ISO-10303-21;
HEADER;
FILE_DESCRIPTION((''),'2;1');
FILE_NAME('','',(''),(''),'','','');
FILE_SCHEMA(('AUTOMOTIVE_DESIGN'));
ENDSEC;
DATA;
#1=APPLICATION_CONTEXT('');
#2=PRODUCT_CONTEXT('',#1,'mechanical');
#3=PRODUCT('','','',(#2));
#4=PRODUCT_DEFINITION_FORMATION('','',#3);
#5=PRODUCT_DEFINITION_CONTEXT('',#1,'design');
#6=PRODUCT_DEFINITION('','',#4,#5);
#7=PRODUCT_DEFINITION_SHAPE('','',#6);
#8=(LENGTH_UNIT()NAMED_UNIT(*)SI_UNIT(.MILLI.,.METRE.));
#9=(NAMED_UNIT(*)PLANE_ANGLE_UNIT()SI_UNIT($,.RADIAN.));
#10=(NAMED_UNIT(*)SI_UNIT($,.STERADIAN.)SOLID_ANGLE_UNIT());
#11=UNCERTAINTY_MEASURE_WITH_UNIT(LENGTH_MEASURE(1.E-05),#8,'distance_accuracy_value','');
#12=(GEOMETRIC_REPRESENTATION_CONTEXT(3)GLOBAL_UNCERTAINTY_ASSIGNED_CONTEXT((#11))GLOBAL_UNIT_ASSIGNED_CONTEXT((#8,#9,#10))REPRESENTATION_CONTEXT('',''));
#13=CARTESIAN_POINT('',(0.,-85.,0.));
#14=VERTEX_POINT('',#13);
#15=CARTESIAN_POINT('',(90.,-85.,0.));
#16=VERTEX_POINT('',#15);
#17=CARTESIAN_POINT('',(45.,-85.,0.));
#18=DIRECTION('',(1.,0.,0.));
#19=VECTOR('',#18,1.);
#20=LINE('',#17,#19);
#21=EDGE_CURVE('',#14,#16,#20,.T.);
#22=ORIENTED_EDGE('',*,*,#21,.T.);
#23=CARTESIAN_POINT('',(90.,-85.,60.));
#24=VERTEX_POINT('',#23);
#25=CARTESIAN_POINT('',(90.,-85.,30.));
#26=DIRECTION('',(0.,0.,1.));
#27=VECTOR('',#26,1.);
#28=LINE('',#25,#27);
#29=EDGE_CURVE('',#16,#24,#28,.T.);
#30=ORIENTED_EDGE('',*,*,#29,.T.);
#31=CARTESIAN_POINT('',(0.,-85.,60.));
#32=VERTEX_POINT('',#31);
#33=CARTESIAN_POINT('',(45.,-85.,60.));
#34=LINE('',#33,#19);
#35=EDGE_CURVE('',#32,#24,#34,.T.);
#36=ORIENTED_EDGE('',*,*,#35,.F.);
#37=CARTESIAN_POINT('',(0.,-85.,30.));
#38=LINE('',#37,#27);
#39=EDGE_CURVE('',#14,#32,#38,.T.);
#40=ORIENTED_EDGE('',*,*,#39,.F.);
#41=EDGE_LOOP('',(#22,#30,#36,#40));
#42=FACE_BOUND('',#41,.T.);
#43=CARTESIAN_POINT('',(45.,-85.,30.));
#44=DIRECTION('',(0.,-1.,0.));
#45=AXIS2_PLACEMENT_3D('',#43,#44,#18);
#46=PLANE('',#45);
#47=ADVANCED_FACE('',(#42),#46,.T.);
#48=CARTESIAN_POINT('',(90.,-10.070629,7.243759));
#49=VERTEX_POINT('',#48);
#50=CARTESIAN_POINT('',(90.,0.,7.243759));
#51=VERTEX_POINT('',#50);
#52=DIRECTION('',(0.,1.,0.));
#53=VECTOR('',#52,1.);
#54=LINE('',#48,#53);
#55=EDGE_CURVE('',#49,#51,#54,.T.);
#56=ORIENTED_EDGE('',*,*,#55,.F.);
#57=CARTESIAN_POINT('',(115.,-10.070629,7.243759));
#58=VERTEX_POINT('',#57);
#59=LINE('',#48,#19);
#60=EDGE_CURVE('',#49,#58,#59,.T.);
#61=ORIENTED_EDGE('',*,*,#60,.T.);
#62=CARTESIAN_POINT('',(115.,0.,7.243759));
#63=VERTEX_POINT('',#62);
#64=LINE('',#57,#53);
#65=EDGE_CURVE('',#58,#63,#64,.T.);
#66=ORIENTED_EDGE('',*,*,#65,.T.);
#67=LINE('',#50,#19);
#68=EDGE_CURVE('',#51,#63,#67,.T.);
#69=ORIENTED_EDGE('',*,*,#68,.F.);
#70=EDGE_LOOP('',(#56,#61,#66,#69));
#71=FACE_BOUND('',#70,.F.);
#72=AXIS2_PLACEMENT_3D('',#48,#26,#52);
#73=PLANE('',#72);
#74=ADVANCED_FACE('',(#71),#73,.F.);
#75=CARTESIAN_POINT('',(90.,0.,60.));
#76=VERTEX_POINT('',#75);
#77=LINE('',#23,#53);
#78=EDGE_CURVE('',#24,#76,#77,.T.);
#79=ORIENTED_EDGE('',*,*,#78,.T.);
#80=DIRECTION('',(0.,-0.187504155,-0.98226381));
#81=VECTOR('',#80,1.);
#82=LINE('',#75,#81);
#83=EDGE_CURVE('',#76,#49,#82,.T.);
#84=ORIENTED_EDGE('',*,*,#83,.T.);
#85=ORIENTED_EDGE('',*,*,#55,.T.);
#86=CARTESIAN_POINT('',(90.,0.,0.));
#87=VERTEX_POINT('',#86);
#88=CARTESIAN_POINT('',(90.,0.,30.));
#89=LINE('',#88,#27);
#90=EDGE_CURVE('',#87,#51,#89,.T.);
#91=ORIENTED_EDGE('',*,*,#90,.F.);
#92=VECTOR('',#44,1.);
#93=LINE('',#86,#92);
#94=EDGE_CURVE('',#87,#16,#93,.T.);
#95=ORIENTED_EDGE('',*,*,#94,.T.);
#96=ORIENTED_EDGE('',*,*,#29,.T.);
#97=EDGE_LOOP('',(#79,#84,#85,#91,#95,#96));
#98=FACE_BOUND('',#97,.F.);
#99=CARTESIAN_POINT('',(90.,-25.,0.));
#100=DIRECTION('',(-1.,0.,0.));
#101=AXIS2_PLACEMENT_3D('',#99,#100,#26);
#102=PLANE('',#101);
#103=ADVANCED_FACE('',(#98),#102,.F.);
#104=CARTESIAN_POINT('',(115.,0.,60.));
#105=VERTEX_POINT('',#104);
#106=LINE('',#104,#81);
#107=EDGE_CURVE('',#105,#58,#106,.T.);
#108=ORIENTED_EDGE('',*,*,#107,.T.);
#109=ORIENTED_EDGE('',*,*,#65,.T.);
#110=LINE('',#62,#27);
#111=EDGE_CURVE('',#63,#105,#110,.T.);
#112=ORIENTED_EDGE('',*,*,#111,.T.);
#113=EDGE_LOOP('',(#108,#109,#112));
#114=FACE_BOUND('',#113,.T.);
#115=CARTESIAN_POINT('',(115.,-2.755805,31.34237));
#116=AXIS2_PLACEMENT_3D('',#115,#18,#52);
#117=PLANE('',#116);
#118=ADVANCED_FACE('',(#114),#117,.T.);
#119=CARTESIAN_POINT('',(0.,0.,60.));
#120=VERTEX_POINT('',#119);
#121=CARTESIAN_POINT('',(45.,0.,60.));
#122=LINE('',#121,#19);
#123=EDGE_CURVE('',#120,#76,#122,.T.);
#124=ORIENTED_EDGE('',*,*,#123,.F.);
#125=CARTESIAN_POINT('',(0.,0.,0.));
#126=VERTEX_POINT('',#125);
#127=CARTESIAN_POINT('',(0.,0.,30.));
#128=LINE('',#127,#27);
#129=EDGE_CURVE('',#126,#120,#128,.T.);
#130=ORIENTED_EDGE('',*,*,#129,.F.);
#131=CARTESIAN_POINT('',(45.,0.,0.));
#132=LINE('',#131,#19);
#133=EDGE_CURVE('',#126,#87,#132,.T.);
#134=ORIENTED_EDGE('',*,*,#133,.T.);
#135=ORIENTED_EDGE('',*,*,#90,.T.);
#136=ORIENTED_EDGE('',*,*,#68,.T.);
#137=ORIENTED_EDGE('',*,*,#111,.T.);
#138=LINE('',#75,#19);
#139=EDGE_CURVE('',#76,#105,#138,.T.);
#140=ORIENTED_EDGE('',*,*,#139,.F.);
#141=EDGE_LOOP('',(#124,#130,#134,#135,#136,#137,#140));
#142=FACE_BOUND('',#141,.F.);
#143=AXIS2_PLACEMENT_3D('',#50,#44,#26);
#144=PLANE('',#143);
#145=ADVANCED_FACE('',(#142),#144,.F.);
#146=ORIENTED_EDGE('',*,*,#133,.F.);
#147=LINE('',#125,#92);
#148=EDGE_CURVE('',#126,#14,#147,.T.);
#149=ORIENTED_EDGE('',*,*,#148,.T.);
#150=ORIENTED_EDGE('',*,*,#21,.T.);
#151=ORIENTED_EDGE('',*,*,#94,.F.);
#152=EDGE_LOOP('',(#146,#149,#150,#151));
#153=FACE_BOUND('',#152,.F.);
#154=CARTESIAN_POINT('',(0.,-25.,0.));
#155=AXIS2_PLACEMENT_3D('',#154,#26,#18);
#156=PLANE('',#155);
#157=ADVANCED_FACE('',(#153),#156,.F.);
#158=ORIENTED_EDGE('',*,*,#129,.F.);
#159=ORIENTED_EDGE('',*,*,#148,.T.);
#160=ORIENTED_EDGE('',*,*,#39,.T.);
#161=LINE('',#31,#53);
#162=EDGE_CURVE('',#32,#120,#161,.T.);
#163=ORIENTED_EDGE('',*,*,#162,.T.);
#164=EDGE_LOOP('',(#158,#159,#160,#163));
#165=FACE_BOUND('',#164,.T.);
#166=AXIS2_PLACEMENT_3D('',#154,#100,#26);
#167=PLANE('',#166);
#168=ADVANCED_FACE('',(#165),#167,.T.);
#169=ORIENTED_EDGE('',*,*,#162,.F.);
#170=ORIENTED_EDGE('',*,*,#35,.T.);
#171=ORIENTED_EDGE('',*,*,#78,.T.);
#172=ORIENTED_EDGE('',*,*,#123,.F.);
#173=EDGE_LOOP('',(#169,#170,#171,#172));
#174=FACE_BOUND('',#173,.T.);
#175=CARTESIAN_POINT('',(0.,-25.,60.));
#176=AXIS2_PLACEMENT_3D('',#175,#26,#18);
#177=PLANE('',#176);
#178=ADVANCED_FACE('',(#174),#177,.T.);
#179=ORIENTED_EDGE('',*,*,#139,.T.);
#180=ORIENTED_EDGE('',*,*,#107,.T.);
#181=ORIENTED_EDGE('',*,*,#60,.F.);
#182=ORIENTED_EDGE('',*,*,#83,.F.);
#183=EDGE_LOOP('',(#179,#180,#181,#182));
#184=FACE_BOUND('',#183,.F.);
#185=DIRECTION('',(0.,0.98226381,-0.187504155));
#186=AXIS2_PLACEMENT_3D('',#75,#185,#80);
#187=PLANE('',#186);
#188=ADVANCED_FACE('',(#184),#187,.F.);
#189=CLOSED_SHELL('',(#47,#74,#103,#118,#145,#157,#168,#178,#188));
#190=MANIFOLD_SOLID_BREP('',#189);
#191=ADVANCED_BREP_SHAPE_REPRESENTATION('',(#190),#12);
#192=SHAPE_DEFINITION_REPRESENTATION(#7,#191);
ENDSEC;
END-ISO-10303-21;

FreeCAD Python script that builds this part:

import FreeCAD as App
import Part
import Sketcher
from FreeCAD import Vector

doc = App.newDocument("Part")
params = doc.addObject("Spreadsheet::Sheet", "Params")
for row, (alias, value) in enumerate([
    ("sketch1_width", "90 mm"),
    ("sketch1_height", "60 mm"),
    ("pad1_length", "25 mm"),
    ("sketch2_width", "90 mm"),
    ("sketch2_height", "60 mm"),
    ("pad2_length", "60 mm"),
    ("pad3_length", "25 mm"),
], start=1):
    params.set(f"A{row}", alias)
    params.set(f"B{row}", "=" + value)
    params.setAlias(f"B{row}", alias)

body = doc.addObject("PartDesign::Body", "Body")

sketch1 = body.newObject("Sketcher::SketchObject", "Sketch")
sketch1.AttachmentSupport = (doc.getObject("XZ_Plane"), [""])
sketch1.MapMode = "FlatFace"
sketch1.addGeometry(Part.LineSegment(Vector(0, 60, 0), Vector(0, 0, 0)), False)
sketch1.addGeometry(Part.LineSegment(Vector(0, 0, 0), Vector(90, 0, 0)), False)
sketch1.addGeometry(Part.LineSegment(Vector(90, 0, 0), Vector(90, 60, 0)), False)
sketch1.addGeometry(Part.LineSegment(Vector(90, 60, 0), Vector(0, 60, 0)), False)
sketch1.addConstraint(Sketcher.Constraint("Coincident", 0, 2, 1, 1))
sketch1.addConstraint(Sketcher.Constraint("Coincident", 1, 2, 2, 1))
sketch1.addConstraint(Sketcher.Constraint("Coincident", 2, 2, 3, 1))
sketch1.addConstraint(Sketcher.Constraint("Coincident", 3, 2, 0, 1))
sketch1.addConstraint(Sketcher.Constraint("Vertical", 0))
sketch1.addConstraint(Sketcher.Constraint("Horizontal", 1))
sketch1.addConstraint(Sketcher.Constraint("Vertical", 2))
sketch1.addConstraint(Sketcher.Constraint("Horizontal", 3))
sketch1.addConstraint(Sketcher.Constraint("Coincident", 0, 2, -1, 1))
sketch1.addConstraint(Sketcher.Constraint("DistanceX", 1, 1, 1, 2, 90.0))
sketch1.addConstraint(Sketcher.Constraint("DistanceY", 0, 2, 0, 1, 60.0))
sketch1.setExpression("Constraints[9]", "Params.sketch1_width")
sketch1.setExpression("Constraints[10]", "Params.sketch1_height")
pad1 = body.newObject("PartDesign::Pad", "Pad")
pad1.Profile = sketch1
pad1.setExpression("Length", "Params.pad1_length")

sketch2 = body.newObject("Sketcher::SketchObject", "Sketch001")
sketch2.AttachmentSupport = (doc.getObject("XZ_Plane"), [""])
sketch2.MapMode = "FlatFace"
sketch2.AttachmentOffset = App.Placement(Vector(0, 0, 25), App.Rotation())
sketch2.addGeometry(Part.LineSegment(Vector(0, 60, 0), Vector(0, 0, 0)), False)
sketch2.addGeometry(Part.LineSegment(Vector(0, 0, 0), Vector(90, 0, 0)), False)
sketch2.addGeometry(Part.LineSegment(Vector(90, 0, 0), Vector(90, 60, 0)), False)
sketch2.addGeometry(Part.LineSegment(Vector(90, 60, 0), Vector(0, 60, 0)), False)
sketch2.addConstraint(Sketcher.Constraint("Coincident", 0, 2, 1, 1))
sketch2.addConstraint(Sketcher.Constraint("Coincident", 1, 2, 2, 1))
sketch2.addConstraint(Sketcher.Constraint("Coincident", 2, 2, 3, 1))
sketch2.addConstraint(Sketcher.Constraint("Coincident", 3, 2, 0, 1))
sketch2.addConstraint(Sketcher.Constraint("Vertical", 0))
sketch2.addConstraint(Sketcher.Constraint("Horizontal", 1))
sketch2.addConstraint(Sketcher.Constraint("Vertical", 2))
sketch2.addConstraint(Sketcher.Constraint("Horizontal", 3))
sketch2.addConstraint(Sketcher.Constraint("Coincident", 0, 2, -1, 1))
sketch2.addConstraint(Sketcher.Constraint("DistanceX", 1, 1, 1, 2, 90.0))
sketch2.addConstraint(Sketcher.Constraint("DistanceY", 0, 2, 0, 1, 60.0))
sketch2.setExpression("Constraints[9]", "Params.sketch2_width")
sketch2.setExpression("Constraints[10]", "Params.sketch2_height")
pad2 = body.newObject("PartDesign::Pad", "Pad001")
pad2.Profile = sketch2
pad2.setExpression("Length", "Params.pad2_length")

sketch3 = body.newObject("Sketcher::SketchObject", "Sketch002")
sketch3.AttachmentSupport = (doc.getObject("YZ_Plane"), [""])
sketch3.MapMode = "FlatFace"
sketch3.AttachmentOffset = App.Placement(Vector(0, 0, 90), App.Rotation())
sketch3.addGeometry(Part.LineSegment(Vector(0, 7, 0), Vector(0, 60, 0)), False)
sketch3.addGeometry(Part.LineSegment(Vector(0, 60, 0), Vector(-10, 7, 0)), False)
sketch3.addGeometry(Part.LineSegment(Vector(-10, 7, 0), Vector(0, 7, 0)), False)
sketch3.addConstraint(Sketcher.Constraint("Coincident", 0, 2, 1, 1))
sketch3.addConstraint(Sketcher.Constraint("Coincident", 1, 2, 2, 1))
sketch3.addConstraint(Sketcher.Constraint("Coincident", 2, 2, 0, 1))
sketch3.addConstraint(Sketcher.Constraint("Vertical", 0))
sketch3.addConstraint(Sketcher.Constraint("Horizontal", 2))
sketch3.addConstraint(Sketcher.Constraint("PointOnObject", 0, 2, -2))
sketch3.addConstraint(Sketcher.Constraint("DistanceY", -1, 1, 0, 2, 60.0))
sketch3.addConstraint(Sketcher.Constraint("DistanceX", 2, 1, 2, 2, 10.070629))
sketch3.addConstraint(Sketcher.Constraint("DistanceY", 0, 1, 0, 2, 52.756241))
pad3 = body.newObject("PartDesign::Pad", "Pad002")
pad3.Profile = sketch3
pad3.setExpression("Length", "Params.pad3_length")

doc.recompute()
